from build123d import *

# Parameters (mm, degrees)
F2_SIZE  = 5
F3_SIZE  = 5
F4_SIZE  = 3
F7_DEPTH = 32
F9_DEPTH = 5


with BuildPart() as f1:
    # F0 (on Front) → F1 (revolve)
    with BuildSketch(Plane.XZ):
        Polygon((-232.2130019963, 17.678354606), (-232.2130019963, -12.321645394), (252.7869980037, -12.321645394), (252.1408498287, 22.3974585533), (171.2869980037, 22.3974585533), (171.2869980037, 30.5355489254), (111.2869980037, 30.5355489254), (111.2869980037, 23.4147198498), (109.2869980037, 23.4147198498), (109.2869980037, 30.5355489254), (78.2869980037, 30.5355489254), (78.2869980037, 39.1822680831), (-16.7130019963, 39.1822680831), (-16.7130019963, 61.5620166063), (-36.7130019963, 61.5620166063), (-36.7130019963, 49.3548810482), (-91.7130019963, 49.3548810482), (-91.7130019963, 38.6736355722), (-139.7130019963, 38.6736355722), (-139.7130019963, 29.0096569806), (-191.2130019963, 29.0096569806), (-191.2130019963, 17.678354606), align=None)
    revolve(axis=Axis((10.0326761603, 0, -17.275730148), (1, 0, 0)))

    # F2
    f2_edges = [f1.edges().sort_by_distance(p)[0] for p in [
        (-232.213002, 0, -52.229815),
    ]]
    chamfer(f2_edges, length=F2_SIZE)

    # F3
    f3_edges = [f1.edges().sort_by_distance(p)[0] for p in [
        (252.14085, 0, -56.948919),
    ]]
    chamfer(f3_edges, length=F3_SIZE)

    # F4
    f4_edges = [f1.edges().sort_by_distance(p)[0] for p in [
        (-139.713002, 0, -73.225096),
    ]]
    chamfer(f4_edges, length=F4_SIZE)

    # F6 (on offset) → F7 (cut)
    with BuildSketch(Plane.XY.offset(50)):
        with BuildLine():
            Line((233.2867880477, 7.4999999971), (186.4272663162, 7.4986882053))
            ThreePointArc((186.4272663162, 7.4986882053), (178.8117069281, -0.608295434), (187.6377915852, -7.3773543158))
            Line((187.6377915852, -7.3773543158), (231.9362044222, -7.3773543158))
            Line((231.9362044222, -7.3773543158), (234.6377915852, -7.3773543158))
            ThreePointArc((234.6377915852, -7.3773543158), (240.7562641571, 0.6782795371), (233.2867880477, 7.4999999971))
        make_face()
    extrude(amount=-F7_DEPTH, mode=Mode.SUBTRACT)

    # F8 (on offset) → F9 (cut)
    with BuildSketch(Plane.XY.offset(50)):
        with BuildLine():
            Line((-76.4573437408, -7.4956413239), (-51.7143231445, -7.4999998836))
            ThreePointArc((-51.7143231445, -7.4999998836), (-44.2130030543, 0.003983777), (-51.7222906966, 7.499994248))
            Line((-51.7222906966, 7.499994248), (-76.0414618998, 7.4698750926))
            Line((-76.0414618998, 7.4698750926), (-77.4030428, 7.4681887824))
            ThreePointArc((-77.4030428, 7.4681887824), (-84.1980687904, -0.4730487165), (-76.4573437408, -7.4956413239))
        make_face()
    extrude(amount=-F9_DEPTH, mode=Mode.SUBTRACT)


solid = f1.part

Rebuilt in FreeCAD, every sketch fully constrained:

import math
import FreeCAD as App
import Part
import Sketcher
Q = App.Units.Quantity


def edges_at(feature, points):
    """Names of the edges that pass closest to the given points."""
    edges = feature.Shape.Edges
    near = lambda p: min(range(len(edges)), key=lambda i: edges[i].distToShape(Part.Vertex(*p))[0])
    return sorted({f"Edge{near(p) + 1}" for p in points})

doc = App.newDocument("Part")
body = doc.addObject("PartDesign::Body", "Body")

sketch1 = body.newObject("Sketcher::SketchObject", "Sketch")
sketch1.AttachmentSupport = (doc.getObject("XZ_Plane"), [""])
sketch1.MapMode = "FlatFace"
sketch1.addGeometry([
    Part.LineSegment(App.Vector(-232.2, 17.7, 0), App.Vector(-232.2, -12.3, 0)),
    Part.LineSegment(App.Vector(-232.2, -12.3, 0), App.Vector(252.8, -12.3, 0)),
    Part.LineSegment(App.Vector(252.8, -12.3, 0), App.Vector(252.1, 22.4, 0)),
    Part.LineSegment(App.Vector(252.1, 22.4, 0), App.Vector(171.3, 22.4, 0)),
    Part.LineSegment(App.Vector(171.3, 22.4, 0), App.Vector(171.3, 30.5, 0)),
    Part.LineSegment(App.Vector(171.3, 30.5, 0), App.Vector(111.3, 30.5, 0)),
    Part.LineSegment(App.Vector(111.3, 30.5, 0), App.Vector(111.3, 23.4, 0)),
    Part.LineSegment(App.Vector(111.3, 23.4, 0), App.Vector(109.3, 23.4, 0)),
    Part.LineSegment(App.Vector(109.3, 23.4, 0), App.Vector(109.3, 30.5, 0)),
    Part.LineSegment(App.Vector(109.3, 30.5, 0), App.Vector(78.3, 30.5, 0)),
    Part.LineSegment(App.Vector(78.3, 30.5, 0), App.Vector(78.3, 39.2, 0)),
    Part.LineSegment(App.Vector(78.3, 39.2, 0), App.Vector(-16.7, 39.2, 0)),
    Part.LineSegment(App.Vector(-16.7, 39.2, 0), App.Vector(-16.7, 61.6, 0)),
    Part.LineSegment(App.Vector(-16.7, 61.6, 0), App.Vector(-36.7, 61.6, 0)),
    Part.LineSegment(App.Vector(-36.7, 61.6, 0), App.Vector(-36.7, 49.4, 0)),
    Part.LineSegment(App.Vector(-36.7, 49.4, 0), App.Vector(-91.7, 49.4, 0)),
    Part.LineSegment(App.Vector(-91.7, 49.4, 0), App.Vector(-91.7, 38.7, 0)),
    Part.LineSegment(App.Vector(-91.7, 38.7, 0), App.Vector(-139.7, 38.7, 0)),
    Part.LineSegment(App.Vector(-139.7, 38.7, 0), App.Vector(-139.7, 29, 0)),
    Part.LineSegment(App.Vector(-139.7, 29, 0), App.Vector(-191.2, 29, 0)),
    Part.LineSegment(App.Vector(-191.2, 29, 0), App.Vector(-191.2, 17.7, 0)),
    Part.LineSegment(App.Vector(-191.2, 17.7, 0), App.Vector(-232.2, 17.7, 0)),
], False)
sketch1.addGeometry(Part.LineSegment(App.Vector(-232.2, -17.3, 0), App.Vector(252.8, -17.3, 0)), True)
sketch1.addConstraint([
    Sketcher.Constraint("Coincident", 0, 2, 1, 1),
    Sketcher.Constraint("Coincident", 1, 2, 2, 1),
    Sketcher.Constraint("Coincident", 2, 2, 3, 1),
    Sketcher.Constraint("Coincident", 3, 2, 4, 1),
    Sketcher.Constraint("Coincident", 4, 2, 5, 1),
    Sketcher.Constraint("Coincident", 5, 2, 6, 1),
    Sketcher.Constraint("Coincident", 6, 2, 7, 1),
    Sketcher.Constraint("Coincident", 7, 2, 8, 1),
    Sketcher.Constraint("Coincident", 8, 2, 9, 1),
    Sketcher.Constraint("Coincident", 9, 2, 10, 1),
    Sketcher.Constraint("Coincident", 10, 2, 11, 1),
    Sketcher.Constraint("Coincident", 11, 2, 12, 1),
    Sketcher.Constraint("Coincident", 12, 2, 13, 1),
    Sketcher.Constraint("Coincident", 13, 2, 14, 1),
    Sketcher.Constraint("Coincident", 14, 2, 15, 1),
    Sketcher.Constraint("Coincident", 15, 2, 16, 1),
    Sketcher.Constraint("Coincident", 16, 2, 17, 1),
    Sketcher.Constraint("Coincident", 17, 2, 18, 1),
    Sketcher.Constraint("Coincident", 18, 2, 19, 1),
    Sketcher.Constraint("Coincident", 19, 2, 20, 1),
    Sketcher.Constraint("Coincident", 20, 2, 21, 1),
    Sketcher.Constraint("Coincident", 21, 2, 0, 1),
    Sketcher.Constraint("Vertical", 0),
    Sketcher.Constraint("Horizontal", 1),
    Sketcher.Constraint("Horizontal", 3),
    Sketcher.Constraint("Vertical", 4),
    Sketcher.Constraint("Horizontal", 5),
    Sketcher.Constraint("Vertical", 6),
    Sketcher.Constraint("Horizontal", 7),
    Sketcher.Constraint("Vertical", 8),
    Sketcher.Constraint("Horizontal", 9),
    Sketcher.Constraint("Vertical", 10),
    Sketcher.Constraint("Horizontal", 11),
    Sketcher.Constraint("Vertical", 12),
    Sketcher.Constraint("Horizontal", 13),
    Sketcher.Constraint("Vertical", 14),
    Sketcher.Constraint("Horizontal", 15),
    Sketcher.Constraint("Vertical", 16),
    Sketcher.Constraint("Horizontal", 17),
    Sketcher.Constraint("Vertical", 18),
    Sketcher.Constraint("Horizontal", 19),
    Sketcher.Constraint("Vertical", 20),
    Sketcher.Constraint("Horizontal", 21),
    Sketcher.Constraint("Horizontal", 22),
    Sketcher.Constraint("Horizontal", 5, 2, 8, 2),
    Sketcher.Constraint("Vertical", 21, 2, 22, 1),
    Sketcher.Constraint("Vertical", 1, 2, 22, 2),
    Sketcher.Constraint("DistanceX", 1, 1, 1, 2, Q("485 mm")),
    Sketcher.Constraint("DistanceX", 5, 2, 5, 1, Q("60 mm")),
    Sketcher.Constraint("DistanceX", 7, 2, 7, 1, Q("2 mm")),
    Sketcher.Constraint("DistanceX", 9, 2, 9, 1, Q("31 mm")),
    Sketcher.Constraint("DistanceX", 11, 2, 11, 1, Q("95 mm")),
    Sketcher.Constraint("DistanceX", 13, 2, 13, 1, Q("20 mm")),
    Sketcher.Constraint("DistanceX", 15, 2, 15, 1, Q("55 mm")),
    Sketcher.Constraint("DistanceX", 17, 2, 17, 1, Q("48 mm")),
    Sketcher.Constraint("DistanceX", 21, 2, 21, 1, Q("41 mm")),
    Sketcher.Constraint("DistanceY", 0, 2, 0, 1, Q("30 mm")),
    Sketcher.Constraint("DistanceX", 19, 2, 19, 1, Q("51.5 mm")),
    Sketcher.Constraint("DistanceX", 0, 2, -1, 1, Q("232.213002 mm")),
    Sketcher.Constraint("DistanceX", 3, 2, 3, 1, Q("80.853852 mm")),
    Sketcher.Constraint("DistanceY", 4, 1, 4, 2, Q("8.13809 mm")),
    Sketcher.Constraint("DistanceY", 6, 2, 6, 1, Q("7.120829 mm")),
    Sketcher.Constraint("DistanceY", 10, 1, 10, 2, Q("8.646719 mm")),
    Sketcher.Constraint("DistanceY", 12, 1, 12, 2, Q("22.379749 mm")),
    Sketcher.Constraint("DistanceY", 18, 2, 18, 1, Q("9.663979 mm")),
    Sketcher.Constraint("DistanceY", 14, 2, 14, 1, Q("12.207136 mm")),
    Sketcher.Constraint("DistanceY", 16, 2, 16, 1, Q("10.681245 mm")),
    Sketcher.Constraint("DistanceY", 20, 2, 20, 1, Q("11.331302 mm")),
    Sketcher.Constraint("DistanceY", -1, 1, 2, 2, Q("22.397459 mm")),
    Sketcher.Constraint("DistanceY", 22, 1, -1, 1, Q("17.27573 mm")),
])
revolution = body.newObject("PartDesign::Revolution", "Revolution")
revolution.Profile = sketch1
revolution.ReferenceAxis = (sketch1, ["Axis0"])
revolution.Angle = 360
doc.recompute()

chamfer = body.newObject("PartDesign::Chamfer", "Chamfer")
chamfer.Base = (revolution, edges_at(revolution, [(-232.213, 0, -52.23)]))
chamfer.Size = 5
doc.recompute()

chamfer2 = body.newObject("PartDesign::Chamfer", "Chamfer001")
chamfer2.Base = (chamfer, edges_at(chamfer, [(252.141, 0, -56.949)]))
chamfer2.Size = 5
doc.recompute()

chamfer3 = body.newObject("PartDesign::Chamfer", "Chamfer002")
chamfer3.Base = (chamfer2, edges_at(chamfer2, [(-139.713, 0, -73.225)]))
chamfer3.Size = 3

sketch2 = body.newObject("Sketcher::SketchObject", "Sketch001")
sketch2.AttachmentSupport = (doc.getObject("XY_Plane"), [""])
sketch2.MapMode = "FlatFace"
sketch2.AttachmentOffset = App.Placement(App.Vector(0, 0, 50), App.Rotation())
sketch2.addGeometry([
    Part.LineSegment(App.Vector(233, 7, 0), App.Vector(186, 7, 0)),
    Part.ArcOfCircle(Part.Circle(App.Vector(186, 0, 0), App.Vector(0, 0, 1), 8), math.radians(89), math.radians(280)),
    Part.LineSegment(App.Vector(188, -7, 0), App.Vector(235, -7, 0)),
    Part.ArcOfCircle(Part.Circle(App.Vector(233, 0, 0), App.Vector(0, 0, 1), 8), math.radians(-80), math.radians(90)),
], False)
sketch2.addConstraint([
    Sketcher.Constraint("Coincident", 0, 2, 1, 1),
    Sketcher.Constraint("Coincident", 1, 2, 2, 1),
    Sketcher.Constraint("Coincident", 2, 2, 3, 1),
    Sketcher.Constraint("Tangent", 3, 2, 0, 1),
    Sketcher.Constraint("Horizontal", 2),
    Sketcher.Constraint("Equal", 1, 3),
    Sketcher.Constraint("PointOnObject", 1, 3, -1),
    Sketcher.Constraint("PointOnObject", 3, 3, -1),
    Sketcher.Constraint("Radius", 1, Q("7.5 mm")),
    Sketcher.Constraint("DistanceX", 2, 1, 2, 2, Q("47 mm")),
    Sketcher.Constraint("DistanceX", -1, 1, 1, 3, Q("186.286998 mm")),
    Sketcher.Constraint("Distance", 0, Q("46.859522 mm")),
    Sketcher.Constraint("DistanceX", -1, 1, 1, 2, Q("187.637792 mm")),
])
pocket1 = body.newObject("PartDesign::Pocket", "Pocket")
pocket1.Profile = sketch2
pocket1.Length = 32

sketch3 = body.newObject("Sketcher::SketchObject", "Sketch002")
sketch3.AttachmentSupport = (doc.getObject("XY_Plane"), [""])
sketch3.MapMode = "FlatFace"
sketch3.AttachmentOffset = App.Placement(App.Vector(0, 0, 50), App.Rotation())
sketch3.addGeometry([
    Part.LineSegment(App.Vector(-76.5, -7.5, 0), App.Vector(-51.7, -7.5, 0)),
    Part.ArcOfCircle(Part.Circle(App.Vector(-51.7, 0, 0), App.Vector(0, 0, 1), 7.5), math.radians(-90), math.radians(90)),
    Part.LineSegment(App.Vector(-51.7, 7.5, 0), App.Vector(-76, 7.5, 0)),
    Part.LineSegment(App.Vector(-76, 7.5, 0), App.Vector(-77.4, 7.5, 0)),
    Part.ArcOfCircle(Part.Circle(App.Vector(-76.7, 0, 0), App.Vector(0, 0, 1), 7.5), math.radians(95), math.radians(272)),
], False)
sketch3.addConstraint([
    Sketcher.Constraint("Tangent", 0, 2, 1, 1),
    Sketcher.Constraint("Tangent", 1, 2, 2, 1),
    Sketcher.Constraint("Coincident", 2, 2, 3, 1),
    Sketcher.Constraint("Coincident", 3, 2, 4, 1),
    Sketcher.Constraint("Coincident", 4, 2, 0, 1),
    Sketcher.Constraint("Equal", 1, 4),
    Sketcher.Constraint("PointOnObject", 1, 3, -1),
    Sketcher.Constraint("PointOnObject", 4, 3, -1),
    Sketcher.Constraint("Parallel", 2, 3),
    Sketcher.Constraint("Radius", 1, Q("7.5 mm")),
    Sketcher.Constraint("DistanceX", 4, 3, 1, 3, Q("25 mm")),
    Sketcher.Constraint("DistanceX", 1, 3, -1, 1, Q("51.713002 mm")),
    Sketcher.Constraint("DistanceX", 3, 2, 4, 2, Q("0.945699 mm")),
    Sketcher.Constraint("Distance", 0, Q("24.743021 mm")),
    Sketcher.Constraint("Distance", 2, Q("24.31919 mm")),
])
pocket2 = body.newObject("PartDesign::Pocket", "Pocket001")
pocket2.Profile = sketch3
pocket2.Length = 5

doc.recompute()
